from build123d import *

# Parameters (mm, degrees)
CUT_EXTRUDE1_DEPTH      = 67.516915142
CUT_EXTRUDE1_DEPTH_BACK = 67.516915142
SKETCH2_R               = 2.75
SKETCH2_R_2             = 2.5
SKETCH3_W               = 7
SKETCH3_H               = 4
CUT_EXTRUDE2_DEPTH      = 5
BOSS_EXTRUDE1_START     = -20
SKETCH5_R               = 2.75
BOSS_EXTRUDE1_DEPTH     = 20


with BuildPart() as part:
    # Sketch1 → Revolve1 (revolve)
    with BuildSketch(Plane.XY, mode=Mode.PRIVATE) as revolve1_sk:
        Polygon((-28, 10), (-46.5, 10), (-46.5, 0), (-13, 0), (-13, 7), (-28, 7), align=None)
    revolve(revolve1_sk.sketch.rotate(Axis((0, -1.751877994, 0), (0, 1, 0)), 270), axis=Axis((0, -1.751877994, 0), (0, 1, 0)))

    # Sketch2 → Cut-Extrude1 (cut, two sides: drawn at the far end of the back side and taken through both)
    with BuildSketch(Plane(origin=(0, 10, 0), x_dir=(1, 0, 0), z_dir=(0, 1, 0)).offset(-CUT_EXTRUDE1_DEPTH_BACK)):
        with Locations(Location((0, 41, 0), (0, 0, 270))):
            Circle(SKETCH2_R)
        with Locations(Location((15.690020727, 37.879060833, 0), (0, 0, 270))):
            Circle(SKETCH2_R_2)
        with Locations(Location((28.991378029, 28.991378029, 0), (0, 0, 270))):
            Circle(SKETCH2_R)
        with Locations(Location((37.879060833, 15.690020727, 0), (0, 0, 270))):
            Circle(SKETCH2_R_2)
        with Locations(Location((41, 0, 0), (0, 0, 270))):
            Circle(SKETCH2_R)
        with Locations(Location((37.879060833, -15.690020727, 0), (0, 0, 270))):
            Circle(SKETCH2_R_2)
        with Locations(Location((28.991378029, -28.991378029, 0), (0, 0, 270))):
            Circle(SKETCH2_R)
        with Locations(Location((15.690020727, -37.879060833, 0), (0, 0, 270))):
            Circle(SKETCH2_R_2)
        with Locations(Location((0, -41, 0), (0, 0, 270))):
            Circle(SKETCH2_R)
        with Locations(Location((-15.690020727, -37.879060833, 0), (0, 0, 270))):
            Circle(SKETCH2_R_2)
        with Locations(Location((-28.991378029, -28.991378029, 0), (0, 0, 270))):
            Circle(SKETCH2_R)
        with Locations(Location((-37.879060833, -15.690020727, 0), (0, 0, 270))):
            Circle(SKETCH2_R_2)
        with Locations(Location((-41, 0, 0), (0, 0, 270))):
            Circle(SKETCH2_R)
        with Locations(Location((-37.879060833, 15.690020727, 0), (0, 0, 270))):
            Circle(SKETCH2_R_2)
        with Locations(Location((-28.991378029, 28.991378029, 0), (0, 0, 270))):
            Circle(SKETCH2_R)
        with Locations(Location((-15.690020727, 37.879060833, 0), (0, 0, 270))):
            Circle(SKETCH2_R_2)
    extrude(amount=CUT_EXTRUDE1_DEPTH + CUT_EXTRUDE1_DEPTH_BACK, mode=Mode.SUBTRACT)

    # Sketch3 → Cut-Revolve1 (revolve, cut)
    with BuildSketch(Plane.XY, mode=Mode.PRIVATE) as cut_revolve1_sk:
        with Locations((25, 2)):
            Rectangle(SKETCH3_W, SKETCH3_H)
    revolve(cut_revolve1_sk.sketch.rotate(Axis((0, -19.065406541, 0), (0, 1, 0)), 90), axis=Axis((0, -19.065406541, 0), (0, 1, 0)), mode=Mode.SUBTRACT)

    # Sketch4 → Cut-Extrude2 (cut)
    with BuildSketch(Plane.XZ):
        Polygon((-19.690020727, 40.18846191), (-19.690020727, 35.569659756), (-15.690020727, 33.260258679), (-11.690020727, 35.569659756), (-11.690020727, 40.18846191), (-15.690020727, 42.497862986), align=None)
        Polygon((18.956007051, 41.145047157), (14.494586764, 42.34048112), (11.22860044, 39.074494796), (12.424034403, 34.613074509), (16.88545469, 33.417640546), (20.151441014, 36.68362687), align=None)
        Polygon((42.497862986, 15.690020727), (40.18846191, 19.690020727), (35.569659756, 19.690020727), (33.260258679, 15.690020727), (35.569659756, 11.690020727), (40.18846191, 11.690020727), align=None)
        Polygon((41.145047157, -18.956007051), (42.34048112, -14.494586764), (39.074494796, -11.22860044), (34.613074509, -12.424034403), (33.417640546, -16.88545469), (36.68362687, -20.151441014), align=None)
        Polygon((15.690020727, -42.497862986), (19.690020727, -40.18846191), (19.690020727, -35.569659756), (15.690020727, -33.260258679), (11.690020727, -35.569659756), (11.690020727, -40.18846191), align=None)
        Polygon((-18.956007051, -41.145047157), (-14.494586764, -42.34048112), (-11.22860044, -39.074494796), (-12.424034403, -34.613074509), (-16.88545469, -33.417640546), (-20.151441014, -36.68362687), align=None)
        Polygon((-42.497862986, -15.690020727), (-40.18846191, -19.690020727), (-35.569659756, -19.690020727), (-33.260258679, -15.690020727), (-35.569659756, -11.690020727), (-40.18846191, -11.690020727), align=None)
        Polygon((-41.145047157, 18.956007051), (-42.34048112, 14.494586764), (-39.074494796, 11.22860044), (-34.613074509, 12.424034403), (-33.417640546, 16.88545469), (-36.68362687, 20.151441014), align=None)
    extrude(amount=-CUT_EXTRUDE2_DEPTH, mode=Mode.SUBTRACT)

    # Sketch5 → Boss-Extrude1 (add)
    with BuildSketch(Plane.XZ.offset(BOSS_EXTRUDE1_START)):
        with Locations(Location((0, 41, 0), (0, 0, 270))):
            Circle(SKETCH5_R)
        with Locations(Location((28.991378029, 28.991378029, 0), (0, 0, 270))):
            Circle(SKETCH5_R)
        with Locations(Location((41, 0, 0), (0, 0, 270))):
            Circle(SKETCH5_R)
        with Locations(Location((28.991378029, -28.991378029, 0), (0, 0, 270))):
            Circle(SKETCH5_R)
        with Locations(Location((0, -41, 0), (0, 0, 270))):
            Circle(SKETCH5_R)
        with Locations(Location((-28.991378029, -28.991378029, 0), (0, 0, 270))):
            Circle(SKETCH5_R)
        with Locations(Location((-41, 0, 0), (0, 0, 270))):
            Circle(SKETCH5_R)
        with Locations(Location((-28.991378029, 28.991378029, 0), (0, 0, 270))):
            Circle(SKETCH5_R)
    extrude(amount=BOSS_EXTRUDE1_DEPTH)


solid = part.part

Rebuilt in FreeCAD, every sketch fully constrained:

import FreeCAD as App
import Part
import Sketcher
Q = App.Units.Quantity

doc = App.newDocument("Part")
body = doc.addObject("PartDesign::Body", "Body")

sketch1 = doc.addObject("Sketcher::SketchObject", "Sketch")
body.addObject(sketch1)
sketch1.AttachmentSupport = (doc.XY_Plane, [""])
sketch1.MapMode = "FlatFace"
sketch1.addGeometry([
    Part.LineSegment(App.Vector(-28, 10, 0), App.Vector(-46.5, 10, 0)),
    Part.LineSegment(App.Vector(-46.5, 10, 0), App.Vector(-46.5, 0, 0)),
    Part.LineSegment(App.Vector(-46.5, 0, 0), App.Vector(-13, 0, 0)),
    Part.LineSegment(App.Vector(-13, 0, 0), App.Vector(-13, 7, 0)),
    Part.LineSegment(App.Vector(-13, 7, 0), App.Vector(-28, 7, 0)),
    Part.LineSegment(App.Vector(-28, 7, 0), App.Vector(-28, 10, 0)),
], False)
sketch1.addConstraint([
    Sketcher.Constraint("Coincident", 0, 2, 1, 1),
    Sketcher.Constraint("Coincident", 1, 2, 2, 1),
    Sketcher.Constraint("Coincident", 2, 2, 3, 1),
    Sketcher.Constraint("Coincident", 3, 2, 4, 1),
    Sketcher.Constraint("Coincident", 4, 2, 5, 1),
    Sketcher.Constraint("Coincident", 5, 2, 0, 1),
    Sketcher.Constraint("Horizontal", 0),
    Sketcher.Constraint("Vertical", 1),
    Sketcher.Constraint("Horizontal", 2),
    Sketcher.Constraint("Vertical", 3),
    Sketcher.Constraint("Horizontal", 4),
    Sketcher.Constraint("Vertical", 5),
    Sketcher.Constraint("PointOnObject", 1, 2, -1),
    Sketcher.Constraint("DistanceX", 4, 2, 4, 1, Q("15 mm")),
    Sketcher.Constraint("DistanceY", 1, 2, 1, 1, Q("10 mm")),
    Sketcher.Constraint("DistanceY", 3, 1, 3, 2, Q("7 mm")),
    Sketcher.Constraint("DistanceX", 0, 2, 0, 1, Q("18.5 mm")),
    Sketcher.Constraint("DistanceX", 2, 2, -1, 1, Q("13 mm")),
])
revolution = doc.addObject("PartDesign::Revolution", "Revolution")
body.addObject(revolution)
revolution.Profile = sketch1
revolution.ReferenceAxis = (sketch1, ["V_Axis"])
revolution.Angle = 360

sketch2 = doc.addObject("Sketcher::SketchObject", "Sketch001")
body.addObject(sketch2)
sketch2.AttachmentSupport = (doc.XZ_Plane, [""])
sketch2.MapMode = "FlatFace"
sketch2.AttachmentOffset = App.Placement(App.Vector(0, 0, -10), App.Rotation())
sketch2.addGeometry([
    Part.Circle(App.Vector(0, -41, 0), App.Vector(0, 0, 1), 2.75),
    Part.Circle(App.Vector(15.690021, -37.879061, 0), App.Vector(0, 0, 1), 2.5),
    Part.Circle(App.Vector(28.991378, -28.991378, 0), App.Vector(0, 0, 1), 2.75),
    Part.Circle(App.Vector(37.879061, -15.690021, 0), App.Vector(0, 0, 1), 2.5),
    Part.Circle(App.Vector(41, 0, 0), App.Vector(0, 0, 1), 2.75),
    Part.Circle(App.Vector(37.879061, 15.690021, 0), App.Vector(0, 0, 1), 2.5),
    Part.Circle(App.Vector(28.991378, 28.991378, 0), App.Vector(0, 0, 1), 2.75),
    Part.Circle(App.Vector(15.690021, 37.879061, 0), App.Vector(0, 0, 1), 2.5),
    Part.Circle(App.Vector(0, 41, 0), App.Vector(0, 0, 1), 2.75),
    Part.Circle(App.Vector(-15.690021, 37.879061, 0), App.Vector(0, 0, 1), 2.5),
    Part.Circle(App.Vector(-28.991378, 28.991378, 0), App.Vector(0, 0, 1), 2.75),
    Part.Circle(App.Vector(-37.879061, 15.690021, 0), App.Vector(0, 0, 1), 2.5),
    Part.Circle(App.Vector(-41, 0, 0), App.Vector(0, 0, 1), 2.75),
    Part.Circle(App.Vector(-37.879061, -15.690021, 0), App.Vector(0, 0, 1), 2.5),
    Part.Circle(App.Vector(-28.991378, -28.991378, 0), App.Vector(0, 0, 1), 2.75),
    Part.Circle(App.Vector(-15.690021, -37.879061, 0), App.Vector(0, 0, 1), 2.5),
], False)
sketch2.addConstraint([
    Sketcher.Constraint("Equal", 0, 2),
    Sketcher.Constraint("Equal", 1, 3),
    Sketcher.Constraint("Equal", 2, 4),
    Sketcher.Constraint("Equal", 3, 5),
    Sketcher.Constraint("Equal", 4, 6),
    Sketcher.Constraint("Equal", 5, 7),
    Sketcher.Constraint("Equal", 6, 8),
    Sketcher.Constraint("Equal", 7, 9),
    Sketcher.Constraint("Equal", 8, 10),
    Sketcher.Constraint("Equal", 9, 11),
    Sketcher.Constraint("Equal", 10, 12),
    Sketcher.Constraint("Equal", 11, 13),
    Sketcher.Constraint("Equal", 12, 14),
    Sketcher.Constraint("Equal", 13, 15),
    Sketcher.Constraint("Symmetric", 0, 3, 8, 3, -1, 1),
    Sketcher.Constraint("Symmetric", 1, 3, 9, 3, -1, 1),
    Sketcher.Constraint("Symmetric", 2, 3, 10, 3, -1, 1),
    Sketcher.Constraint("Symmetric", 3, 3, 11, 3, -1, 1),
    Sketcher.Constraint("Symmetric", 4, 3, 12, 3, -1, 1),
    Sketcher.Constraint("Symmetric", 5, 3, 13, 3, -1, 1),
    Sketcher.Constraint("Symmetric", 6, 3, 14, 3, -1, 1),
    Sketcher.Constraint("Symmetric", 7, 3, 15, 3, -1, 1),
    Sketcher.Constraint("Symmetric", 7, 3, 9, 3, -2),
    Sketcher.Constraint("Symmetric", 6, 3, 10, 3, -2),
    Sketcher.Constraint("Symmetric", 5, 3, 11, 3, -2),
    Sketcher.Constraint("PointOnObject", 0, 3, -2),
    Sketcher.Constraint("PointOnObject", 4, 3, -1),
    Sketcher.Constraint("Diameter", 1, Q("5 mm")),
    Sketcher.Constraint("Diameter", 0, Q("5.5 mm")),
    Sketcher.Constraint("DistanceY", 0, 3, -1, 1, Q("41 mm")),
    Sketcher.Constraint("DistanceX", -1, 1, 4, 3, Q("41 mm")),
    Sketcher.Constraint("DistanceY", 2, 3, 5, 3, Q("44.681399 mm")),
    Sketcher.Constraint("DistanceX", 9, 3, 6, 3, Q("44.681399 mm")),
    Sketcher.Constraint("DistanceX", -1, 1, 1, 3, Q("15.690021 mm")),
    Sketcher.Constraint("DistanceY", 1, 3, -1, 1, Q("37.879061 mm")),
    Sketcher.Constraint("DistanceY", 2, 3, -1, 1, Q("28.991378 mm")),
    Sketcher.Constraint("DistanceX", -1, 1, 3, 3, Q("37.879061 mm")),
])
pocket1 = doc.addObject("PartDesign::Pocket", "Pocket")
body.addObject(pocket1)
pocket1.Profile = sketch2
pocket1.Type = "ThroughAll"
pocket1.Midplane = True

sketch3 = doc.addObject("Sketcher::SketchObject", "Sketch002")
body.addObject(sketch3)
sketch3.AttachmentSupport = (doc.XY_Plane, [""])
sketch3.MapMode = "FlatFace"
sketch3.addGeometry([
    Part.LineSegment(App.Vector(21.5, 4, 0), App.Vector(21.5, 0, 0)),
    Part.LineSegment(App.Vector(21.5, 0, 0), App.Vector(28.5, 0, 0)),
    Part.LineSegment(App.Vector(28.5, 0, 0), App.Vector(28.5, 4, 0)),
    Part.LineSegment(App.Vector(28.5, 4, 0), App.Vector(21.5, 4, 0)),
], False)
sketch3.addConstraint([
    Sketcher.Constraint("Coincident", 0, 2, 1, 1),
    Sketcher.Constraint("Coincident", 1, 2, 2, 1),
    Sketcher.Constraint("Coincident", 2, 2, 3, 1),
    Sketcher.Constraint("Coincident", 3, 2, 0, 1),
    Sketcher.Constraint("Vertical", 0),
    Sketcher.Constraint("Horizontal", 1),
    Sketcher.Constraint("Vertical", 2),
    Sketcher.Constraint("Horizontal", 3),
    Sketcher.Constraint("PointOnObject", 0, 2, -1),
    Sketcher.Constraint("DistanceX", 1, 1, 1, 2, Q("7 mm")),
    Sketcher.Constraint("DistanceY", 0, 2, 0, 1, Q("4 mm")),
    Sketcher.Constraint("DistanceX", -1, 1, 0, 2, Q("21.5 mm")),
])
groove = doc.addObject("PartDesign::Groove", "Groove")
body.addObject(groove)
groove.Profile = sketch3
groove.ReferenceAxis = (sketch3, ["V_Axis"])
groove.Angle = 360

sketch4 = doc.addObject("Sketcher::SketchObject", "Sketch003")
body.addObject(sketch4)
sketch4.AttachmentSupport = (doc.XZ_Plane, [""])
sketch4.MapMode = "FlatFace"
sketch4.addGeometry([
    Part.LineSegment(App.Vector(-19.690021, 40.188462, 0), App.Vector(-19.690021, 35.56966, 0)),
    Part.LineSegment(App.Vector(-19.690021, 35.56966, 0), App.Vector(-15.690021, 33.260259, 0)),
    Part.LineSegment(App.Vector(-15.690021, 33.260259, 0), App.Vector(-11.690021, 35.56966, 0)),
    Part.LineSegment(App.Vector(-11.690021, 35.56966, 0), App.Vector(-11.690021, 40.188462, 0)),
    Part.LineSegment(App.Vector(-11.690021, 40.188462, 0), App.Vector(-15.690021, 42.497863, 0)),
    Part.LineSegment(App.Vector(-15.690021, 42.497863, 0), App.Vector(-19.690021, 40.188462, 0)),
    Part.LineSegment(App.Vector(18.956007, 41.145047, 0), App.Vector(14.494587, 42.340481, 0)),
    Part.LineSegment(App.Vector(14.494587, 42.340481, 0), App.Vector(11.2286, 39.074495, 0)),
    Part.LineSegment(App.Vector(11.2286, 39.074495, 0), App.Vector(12.424034, 34.613075, 0)),
    Part.LineSegment(App.Vector(12.424034, 34.613075, 0), App.Vector(16.885455, 33.417641, 0)),
    Part.LineSegment(App.Vector(16.885455, 33.417641, 0), App.Vector(20.151441, 36.683627, 0)),
    Part.LineSegment(App.Vector(20.151441, 36.683627, 0), App.Vector(18.956007, 41.145047, 0)),
    Part.LineSegment(App.Vector(42.497863, 15.690021, 0), App.Vector(40.188462, 19.690021, 0)),
    Part.LineSegment(App.Vector(40.188462, 19.690021, 0), App.Vector(35.56966, 19.690021, 0)),
    Part.LineSegment(App.Vector(35.56966, 19.690021, 0), App.Vector(33.260259, 15.690021, 0)),
    Part.LineSegment(App.Vector(33.260259, 15.690021, 0), App.Vector(35.56966, 11.690021, 0)),
    Part.LineSegment(App.Vector(35.56966, 11.690021, 0), App.Vector(40.188462, 11.690021, 0)),
    Part.LineSegment(App.Vector(40.188462, 11.690021, 0), App.Vector(42.497863, 15.690021, 0)),
    Part.LineSegment(App.Vector(41.145047, -18.956007, 0), App.Vector(42.340481, -14.494587, 0)),
    Part.LineSegment(App.Vector(42.340481, -14.494587, 0), App.Vector(39.074495, -11.2286, 0)),
    Part.LineSegment(App.Vector(39.074495, -11.2286, 0), App.Vector(34.613075, -12.424034, 0)),
    Part.LineSegment(App.Vector(34.613075, -12.424034, 0), App.Vector(33.417641, -16.885455, 0)),
    Part.LineSegment(App.Vector(33.417641, -16.885455, 0), App.Vector(36.683627, -20.151441, 0)),
    Part.LineSegment(App.Vector(36.683627, -20.151441, 0), App.Vector(41.145047, -18.956007, 0)),
    Part.LineSegment(App.Vector(15.690021, -42.497863, 0), App.Vector(19.690021, -40.188462, 0)),
    Part.LineSegment(App.Vector(19.690021, -40.188462, 0), App.Vector(19.690021, -35.56966, 0)),
    Part.LineSegment(App.Vector(19.690021, -35.56966, 0), App.Vector(15.690021, -33.260259, 0)),
    Part.LineSegment(App.Vector(15.690021, -33.260259, 0), App.Vector(11.690021, -35.56966, 0)),
    Part.LineSegment(App.Vector(11.690021, -35.56966, 0), App.Vector(11.690021, -40.188462, 0)),
    Part.LineSegment(App.Vector(11.690021, -40.188462, 0), App.Vector(15.690021, -42.497863, 0)),
    Part.LineSegment(App.Vector(-18.956007, -41.145047, 0), App.Vector(-14.494587, -42.340481, 0)),
    Part.LineSegment(App.Vector(-14.494587, -42.340481, 0), App.Vector(-11.2286, -39.074495, 0)),
    Part.LineSegment(App.Vector(-11.2286, -39.074495, 0), App.Vector(-12.424034, -34.613075, 0)),
    Part.LineSegment(App.Vector(-12.424034, -34.613075, 0), App.Vector(-16.885455, -33.417641, 0)),
    Part.LineSegment(App.Vector(-16.885455, -33.417641, 0), App.Vector(-20.151441, -36.683627, 0)),
    Part.LineSegment(App.Vector(-20.151441, -36.683627, 0), App.Vector(-18.956007, -41.145047, 0)),
    Part.LineSegment(App.Vector(-42.497863, -15.690021, 0), App.Vector(-40.188462, -19.690021, 0)),
    Part.LineSegment(App.Vector(-40.188462, -19.690021, 0), App.Vector(-35.56966, -19.690021, 0)),
    Part.LineSegment(App.Vector(-35.56966, -19.690021, 0), App.Vector(-33.260259, -15.690021, 0)),
    Part.LineSegment(App.Vector(-33.260259, -15.690021, 0), App.Vector(-35.56966, -11.690021, 0)),
    Part.LineSegment(App.Vector(-35.56966, -11.690021, 0), App.Vector(-40.188462, -11.690021, 0)),
    Part.LineSegment(App.Vector(-40.188462, -11.690021, 0), App.Vector(-42.497863, -15.690021, 0)),
    Part.LineSegment(App.Vector(-41.145047, 18.956007, 0), App.Vector(-42.340481, 14.494587, 0)),
    Part.LineSegment(App.Vector(-42.340481, 14.494587, 0), App.Vector(-39.074495, 11.2286, 0)),
    Part.LineSegment(App.Vector(-39.074495, 11.2286, 0), App.Vector(-34.613075, 12.424034, 0)),
    Part.LineSegment(App.Vector(-34.613075, 12.424034, 0), App.Vector(-33.417641, 16.885455, 0)),
    Part.LineSegment(App.Vector(-33.417641, 16.885455, 0), App.Vector(-36.683627, 20.151441, 0)),
    Part.LineSegment(App.Vector(-36.683627, 20.151441, 0), App.Vector(-41.145047, 18.956007, 0)),
], False)
sketch4.addConstraint([
    Sketcher.Constraint("Coincident", 0, 2, 1, 1),
    Sketcher.Constraint("Coincident", 1, 2, 2, 1),
    Sketcher.Constraint("Coincident", 2, 2, 3, 1),
    Sketcher.Constraint("Coincident", 3, 2, 4, 1),
    Sketcher.Constraint("Coincident", 4, 2, 5, 1),
    Sketcher.Constraint("Coincident", 5, 2, 0, 1),
    Sketcher.Constraint("Coincident", 6, 2, 7, 1),
    Sketcher.Constraint("Coincident", 7, 2, 8, 1),
    Sketcher.Constraint("Coincident", 8, 2, 9, 1),
    Sketcher.Constraint("Coincident", 9, 2, 10, 1),
    Sketcher.Constraint("Coincident", 10, 2, 11, 1),
    Sketcher.Constraint("Coincident", 11, 2, 6, 1),
    Sketcher.Constraint("Coincident", 12, 2, 13, 1),
    Sketcher.Constraint("Coincident", 13, 2, 14, 1),
    Sketcher.Constraint("Coincident", 14, 2, 15, 1),
    Sketcher.Constraint("Coincident", 15, 2, 16, 1),
    Sketcher.Constraint("Coincident", 16, 2, 17, 1),
    Sketcher.Constraint("Coincident", 17, 2, 12, 1),
    Sketcher.Constraint("Coincident", 18, 2, 19, 1),
    Sketcher.Constraint("Coincident", 19, 2, 20, 1),
    Sketcher.Constraint("Coincident", 20, 2, 21, 1),
    Sketcher.Constraint("Coincident", 21, 2, 22, 1),
    Sketcher.Constraint("Coincident", 22, 2, 23, 1),
    Sketcher.Constraint("Coincident", 23, 2, 18, 1),
    Sketcher.Constraint("Coincident", 24, 2, 25, 1),
    Sketcher.Constraint("Coincident", 25, 2, 26, 1),
    Sketcher.Constraint("Coincident", 26, 2, 27, 1),
    Sketcher.Constraint("Coincident", 27, 2, 28, 1),
    Sketcher.Constraint("Coincident", 28, 2, 29, 1),
    Sketcher.Constraint("Coincident", 29, 2, 24, 1),
    Sketcher.Constraint("Coincident", 30, 2, 31, 1),
    Sketcher.Constraint("Coincident", 31, 2, 32, 1),
    Sketcher.Constraint("Coincident", 32, 2, 33, 1),
    Sketcher.Constraint("Coincident", 33, 2, 34, 1),
    Sketcher.Constraint("Coincident", 34, 2, 35, 1),
    Sketcher.Constraint("Coincident", 35, 2, 30, 1),
    Sketcher.Constraint("Coincident", 36, 2, 37, 1),
    Sketcher.Constraint("Coincident", 37, 2, 38, 1),
    Sketcher.Constraint("Coincident", 38, 2, 39, 1),
    Sketcher.Constraint("Coincident", 39, 2, 40, 1),
    Sketcher.Constraint("Coincident", 40, 2, 41, 1),
    Sketcher.Constraint("Coincident", 41, 2, 36, 1),
    Sketcher.Constraint("Coincident", 42, 2, 43, 1),
    Sketcher.Constraint("Coincident", 43, 2, 44, 1),
    Sketcher.Constraint("Coincident", 44, 2, 45, 1),
    Sketcher.Constraint("Coincident", 45, 2, 46, 1),
    Sketcher.Constraint("Coincident", 46, 2, 47, 1),
    Sketcher.Constraint("Coincident", 47, 2, 42, 1),
    Sketcher.Constraint("Vertical", 0),
    Sketcher.Constraint("Vertical", 3),
    Sketcher.Constraint("Horizontal", 13),
    Sketcher.Constraint("Horizontal", 16),
    Sketcher.Constraint("Vertical", 25),
    Sketcher.Constraint("Vertical", 28),
    Sketcher.Constraint("Horizontal", 37),
    Sketcher.Constraint("Horizontal", 40),
    Sketcher.Constraint("Symmetric", 5, 2, 24, 2, -1, 1),
    Sketcher.Constraint("Symmetric", 1, 2, 26, 2, -1, 1),
    Sketcher.Constraint("Symmetric", 2, 2, 27, 2, -1, 1),
    Sketcher.Constraint("Symmetric", 4, 2, 29, 2, -1, 1),
    Sketcher.Constraint("Symmetric", 6, 2, 30, 2, -1, 1),
    Sketcher.Constraint("Symmetric", 7, 2, 31, 2, -1, 1),
    Sketcher.Constraint("Symmetric", 8, 2, 32, 2, -1, 1),
    Sketcher.Constraint("Symmetric", 9, 2, 33, 2, -1, 1),
    Sketcher.Constraint("Symmetric", 10, 2, 34, 2, -1, 1),
    Sketcher.Constraint("Symmetric", 11, 2, 35, 2, -1, 1),
    Sketcher.Constraint("Symmetric", 12, 2, 36, 2, -1, 1),
    Sketcher.Constraint("Symmetric", 14, 2, 38, 2, -1, 1),
    Sketcher.Constraint("Symmetric", 15, 2, 39, 2, -1, 1),
    Sketcher.Constraint("Symmetric", 17, 2, 41, 2, -1, 1),
    Sketcher.Constraint("Symmetric", 18, 2, 42, 2, -1, 1),
    Sketcher.Constraint("Symmetric", 19, 2, 43, 2, -1, 1),
    Sketcher.Constraint("Symmetric", 20, 2, 44, 2, -1, 1),
    Sketcher.Constraint("Symmetric", 21, 2, 45, 2, -1, 1),
    Sketcher.Constraint("Symmetric", 22, 2, 46, 2, -1, 1),
    Sketcher.Constraint("Symmetric", 23, 2, 47, 2, -1, 1),
    Sketcher.Constraint("Parallel", 1, 4),
    Sketcher.Constraint("Parallel", 2, 5),
    Sketcher.Constraint("Parallel", 6, 9),
    Sketcher.Constraint("Parallel", 7, 10),
    Sketcher.Constraint("Parallel", 8, 11),
    Sketcher.Constraint("Perpendicular", 5, 12),
    Sketcher.Constraint("Perpendicular", 4, 14),
    Sketcher.Constraint("Parallel", 12, 15),
    Sketcher.Constraint("Parallel", 14, 17),
    Sketcher.Constraint("Perpendicular", 9, 18),
    Sketcher.Constraint("Perpendicular", 10, 19),
    Sketcher.Constraint("Perpendicular", 11, 20),
    Sketcher.Constraint("Parallel", 18, 21),
    Sketcher.Constraint("Parallel", 19, 22),
    Sketcher.Constraint("Parallel", 20, 23),
    Sketcher.Constraint("Perpendicular", 17, 26),
    Sketcher.Constraint("Parallel", 26, 29),
    Sketcher.Constraint("Perpendicular", 29, 38),
    Sketcher.Constraint("Parallel", 38, 41),
    Sketcher.Constraint("Horizontal", 0, 2, 2, 2),
    Sketcher.Constraint("Horizontal", 3, 2, 5, 2),
    Sketcher.Constraint("Horizontal", 14, 2, 17, 2),
    Sketcher.Constraint("Vertical", 1, 2, 4, 2),
    Sketcher.Constraint("Vertical", 13, 2, 15, 2),
    Sketcher.Constraint("Equal", 40, 0),
    Sketcher.Constraint("Equal", 5, 6),
    Sketcher.Constraint("Equal", 6, 7),
    Sketcher.Constraint("Equal", 7, 8),
    Sketcher.Constraint("Equal", 8, 9),
    Sketcher.Constraint("Equal", 11, 12),
    Sketcher.Constraint("Equal", 17, 18),
    Sketcher.Constraint("Equal", 18, 19),
    Sketcher.Constraint("Equal", 19, 20),
    Sketcher.Constraint("Equal", 20, 21),
    Sketcher.Constraint("Angle", 1, Q("-30 deg")),
    Sketcher.Constraint("Angle", 6, Q("165 deg")),
    Sketcher.Constraint("Angle", 7, Q("-135 deg")),
    Sketcher.Constraint("Angle", 8, Q("-75 deg")),
    Sketcher.Constraint("DistanceX", 0, 2, 1, 2, Q("4 mm")),
    Sketcher.Constraint("DistanceX", -1, 1, 7, 2, Q("11.2286 mm")),
    Sketcher.Constraint("DistanceY", 19, 2, -1, 1, Q("11.2286 mm")),
    Sketcher.Constraint("DistanceX", 13, 2, 13, 1, Q("4.618802 mm")),
    Sketcher.Constraint("DistanceX", 0, 2, -1, 1, Q("19.690021 mm")),
    Sketcher.Constraint("DistanceY", -1, 1, 0, 2, Q("35.56966 mm")),
    Sketcher.Constraint("DistanceY", -1, 1, 6, 2, Q("42.340481 mm")),
    Sketcher.Constraint("DistanceX", -1, 1, 12, 2, Q("40.188462 mm")),
    Sketcher.Constraint("DistanceY", -1, 1, 12, 2, Q("19.690021 mm")),
    Sketcher.Constraint("DistanceX", -1, 1, 18, 2, Q("42.340481 mm")),
])
pocket2 = doc.addObject("PartDesign::Pocket", "Pocket001")
body.addObject(pocket2)
pocket2.Profile = sketch4
pocket2.Length = 5

sketch5 = doc.addObject("Sketcher::SketchObject", "Sketch004")
body.addObject(sketch5)
sketch5.AttachmentSupport = (doc.XZ_Plane, [""])
sketch5.MapMode = "FlatFace"
sketch5.AttachmentOffset = App.Placement(App.Vector(0, 0, -20), App.Rotation())
sketch5.addGeometry([
    Part.Circle(App.Vector(0, 41, 0), App.Vector(0, 0, 1), 2.75),
    Part.Circle(App.Vector(28.991378, 28.991378, 0), App.Vector(0, 0, 1), 2.75),
    Part.Circle(App.Vector(41, 0, 0), App.Vector(0, 0, 1), 2.75),
    Part.Circle(App.Vector(28.991378, -28.991378, 0), App.Vector(0, 0, 1), 2.75),
    Part.Circle(App.Vector(0, -41, 0), App.Vector(0, 0, 1), 2.75),
    Part.Circle(App.Vector(-28.991378, -28.991378, 0), App.Vector(0, 0, 1), 2.75),
    Part.Circle(App.Vector(-41, 0, 0), App.Vector(0, 0, 1), 2.75),
    Part.Circle(App.Vector(-28.991378, 28.991378, 0), App.Vector(0, 0, 1), 2.75),
], False)
sketch5.addConstraint([
    Sketcher.Constraint("Equal", 0, 1),
    Sketcher.Constraint("Equal", 1, 2),
    Sketcher.Constraint("Equal", 2, 3),
    Sketcher.Constraint("Equal", 3, 4),
    Sketcher.Constraint("Equal", 4, 5),
    Sketcher.Constraint("Equal", 5, 6),
    Sketcher.Constraint("Equal", 6, 7),
    Sketcher.Constraint("Symmetric", 0, 3, 4, 3, -1, 1),
    Sketcher.Constraint("Symmetric", 1, 3, 5, 3, -1, 1),
    Sketcher.Constraint("Symmetric", 2, 3, 6, 3, -1, 1),
    Sketcher.Constraint("Symmetric", 3, 3, 7, 3, -1, 1),
    Sketcher.Constraint("Symmetric", 3, 3, 5, 3, -2),
    Sketcher.Constraint("PointOnObject", 0, 3, -2),
    Sketcher.Constraint("PointOnObject", 2, 3, -1),
    Sketcher.Constraint("Diameter", 0, Q("5.5 mm")),
    Sketcher.Constraint("DistanceY", -1, 1, 0, 3, Q("41 mm")),
    Sketcher.Constraint("DistanceX", -1, 1, 2, 3, Q("41 mm")),
    Sketcher.Constraint("DistanceX", -1, 1, 1, 3, Q("28.991378 mm")),
    Sketcher.Constraint("DistanceY", -1, 1, 1, 3, Q("28.991378 mm")),
])
pad1 = doc.addObject("PartDesign::Pad", "Pad")
body.addObject(pad1)
pad1.Profile = sketch5
pad1.Length = 20

doc.recompute()
